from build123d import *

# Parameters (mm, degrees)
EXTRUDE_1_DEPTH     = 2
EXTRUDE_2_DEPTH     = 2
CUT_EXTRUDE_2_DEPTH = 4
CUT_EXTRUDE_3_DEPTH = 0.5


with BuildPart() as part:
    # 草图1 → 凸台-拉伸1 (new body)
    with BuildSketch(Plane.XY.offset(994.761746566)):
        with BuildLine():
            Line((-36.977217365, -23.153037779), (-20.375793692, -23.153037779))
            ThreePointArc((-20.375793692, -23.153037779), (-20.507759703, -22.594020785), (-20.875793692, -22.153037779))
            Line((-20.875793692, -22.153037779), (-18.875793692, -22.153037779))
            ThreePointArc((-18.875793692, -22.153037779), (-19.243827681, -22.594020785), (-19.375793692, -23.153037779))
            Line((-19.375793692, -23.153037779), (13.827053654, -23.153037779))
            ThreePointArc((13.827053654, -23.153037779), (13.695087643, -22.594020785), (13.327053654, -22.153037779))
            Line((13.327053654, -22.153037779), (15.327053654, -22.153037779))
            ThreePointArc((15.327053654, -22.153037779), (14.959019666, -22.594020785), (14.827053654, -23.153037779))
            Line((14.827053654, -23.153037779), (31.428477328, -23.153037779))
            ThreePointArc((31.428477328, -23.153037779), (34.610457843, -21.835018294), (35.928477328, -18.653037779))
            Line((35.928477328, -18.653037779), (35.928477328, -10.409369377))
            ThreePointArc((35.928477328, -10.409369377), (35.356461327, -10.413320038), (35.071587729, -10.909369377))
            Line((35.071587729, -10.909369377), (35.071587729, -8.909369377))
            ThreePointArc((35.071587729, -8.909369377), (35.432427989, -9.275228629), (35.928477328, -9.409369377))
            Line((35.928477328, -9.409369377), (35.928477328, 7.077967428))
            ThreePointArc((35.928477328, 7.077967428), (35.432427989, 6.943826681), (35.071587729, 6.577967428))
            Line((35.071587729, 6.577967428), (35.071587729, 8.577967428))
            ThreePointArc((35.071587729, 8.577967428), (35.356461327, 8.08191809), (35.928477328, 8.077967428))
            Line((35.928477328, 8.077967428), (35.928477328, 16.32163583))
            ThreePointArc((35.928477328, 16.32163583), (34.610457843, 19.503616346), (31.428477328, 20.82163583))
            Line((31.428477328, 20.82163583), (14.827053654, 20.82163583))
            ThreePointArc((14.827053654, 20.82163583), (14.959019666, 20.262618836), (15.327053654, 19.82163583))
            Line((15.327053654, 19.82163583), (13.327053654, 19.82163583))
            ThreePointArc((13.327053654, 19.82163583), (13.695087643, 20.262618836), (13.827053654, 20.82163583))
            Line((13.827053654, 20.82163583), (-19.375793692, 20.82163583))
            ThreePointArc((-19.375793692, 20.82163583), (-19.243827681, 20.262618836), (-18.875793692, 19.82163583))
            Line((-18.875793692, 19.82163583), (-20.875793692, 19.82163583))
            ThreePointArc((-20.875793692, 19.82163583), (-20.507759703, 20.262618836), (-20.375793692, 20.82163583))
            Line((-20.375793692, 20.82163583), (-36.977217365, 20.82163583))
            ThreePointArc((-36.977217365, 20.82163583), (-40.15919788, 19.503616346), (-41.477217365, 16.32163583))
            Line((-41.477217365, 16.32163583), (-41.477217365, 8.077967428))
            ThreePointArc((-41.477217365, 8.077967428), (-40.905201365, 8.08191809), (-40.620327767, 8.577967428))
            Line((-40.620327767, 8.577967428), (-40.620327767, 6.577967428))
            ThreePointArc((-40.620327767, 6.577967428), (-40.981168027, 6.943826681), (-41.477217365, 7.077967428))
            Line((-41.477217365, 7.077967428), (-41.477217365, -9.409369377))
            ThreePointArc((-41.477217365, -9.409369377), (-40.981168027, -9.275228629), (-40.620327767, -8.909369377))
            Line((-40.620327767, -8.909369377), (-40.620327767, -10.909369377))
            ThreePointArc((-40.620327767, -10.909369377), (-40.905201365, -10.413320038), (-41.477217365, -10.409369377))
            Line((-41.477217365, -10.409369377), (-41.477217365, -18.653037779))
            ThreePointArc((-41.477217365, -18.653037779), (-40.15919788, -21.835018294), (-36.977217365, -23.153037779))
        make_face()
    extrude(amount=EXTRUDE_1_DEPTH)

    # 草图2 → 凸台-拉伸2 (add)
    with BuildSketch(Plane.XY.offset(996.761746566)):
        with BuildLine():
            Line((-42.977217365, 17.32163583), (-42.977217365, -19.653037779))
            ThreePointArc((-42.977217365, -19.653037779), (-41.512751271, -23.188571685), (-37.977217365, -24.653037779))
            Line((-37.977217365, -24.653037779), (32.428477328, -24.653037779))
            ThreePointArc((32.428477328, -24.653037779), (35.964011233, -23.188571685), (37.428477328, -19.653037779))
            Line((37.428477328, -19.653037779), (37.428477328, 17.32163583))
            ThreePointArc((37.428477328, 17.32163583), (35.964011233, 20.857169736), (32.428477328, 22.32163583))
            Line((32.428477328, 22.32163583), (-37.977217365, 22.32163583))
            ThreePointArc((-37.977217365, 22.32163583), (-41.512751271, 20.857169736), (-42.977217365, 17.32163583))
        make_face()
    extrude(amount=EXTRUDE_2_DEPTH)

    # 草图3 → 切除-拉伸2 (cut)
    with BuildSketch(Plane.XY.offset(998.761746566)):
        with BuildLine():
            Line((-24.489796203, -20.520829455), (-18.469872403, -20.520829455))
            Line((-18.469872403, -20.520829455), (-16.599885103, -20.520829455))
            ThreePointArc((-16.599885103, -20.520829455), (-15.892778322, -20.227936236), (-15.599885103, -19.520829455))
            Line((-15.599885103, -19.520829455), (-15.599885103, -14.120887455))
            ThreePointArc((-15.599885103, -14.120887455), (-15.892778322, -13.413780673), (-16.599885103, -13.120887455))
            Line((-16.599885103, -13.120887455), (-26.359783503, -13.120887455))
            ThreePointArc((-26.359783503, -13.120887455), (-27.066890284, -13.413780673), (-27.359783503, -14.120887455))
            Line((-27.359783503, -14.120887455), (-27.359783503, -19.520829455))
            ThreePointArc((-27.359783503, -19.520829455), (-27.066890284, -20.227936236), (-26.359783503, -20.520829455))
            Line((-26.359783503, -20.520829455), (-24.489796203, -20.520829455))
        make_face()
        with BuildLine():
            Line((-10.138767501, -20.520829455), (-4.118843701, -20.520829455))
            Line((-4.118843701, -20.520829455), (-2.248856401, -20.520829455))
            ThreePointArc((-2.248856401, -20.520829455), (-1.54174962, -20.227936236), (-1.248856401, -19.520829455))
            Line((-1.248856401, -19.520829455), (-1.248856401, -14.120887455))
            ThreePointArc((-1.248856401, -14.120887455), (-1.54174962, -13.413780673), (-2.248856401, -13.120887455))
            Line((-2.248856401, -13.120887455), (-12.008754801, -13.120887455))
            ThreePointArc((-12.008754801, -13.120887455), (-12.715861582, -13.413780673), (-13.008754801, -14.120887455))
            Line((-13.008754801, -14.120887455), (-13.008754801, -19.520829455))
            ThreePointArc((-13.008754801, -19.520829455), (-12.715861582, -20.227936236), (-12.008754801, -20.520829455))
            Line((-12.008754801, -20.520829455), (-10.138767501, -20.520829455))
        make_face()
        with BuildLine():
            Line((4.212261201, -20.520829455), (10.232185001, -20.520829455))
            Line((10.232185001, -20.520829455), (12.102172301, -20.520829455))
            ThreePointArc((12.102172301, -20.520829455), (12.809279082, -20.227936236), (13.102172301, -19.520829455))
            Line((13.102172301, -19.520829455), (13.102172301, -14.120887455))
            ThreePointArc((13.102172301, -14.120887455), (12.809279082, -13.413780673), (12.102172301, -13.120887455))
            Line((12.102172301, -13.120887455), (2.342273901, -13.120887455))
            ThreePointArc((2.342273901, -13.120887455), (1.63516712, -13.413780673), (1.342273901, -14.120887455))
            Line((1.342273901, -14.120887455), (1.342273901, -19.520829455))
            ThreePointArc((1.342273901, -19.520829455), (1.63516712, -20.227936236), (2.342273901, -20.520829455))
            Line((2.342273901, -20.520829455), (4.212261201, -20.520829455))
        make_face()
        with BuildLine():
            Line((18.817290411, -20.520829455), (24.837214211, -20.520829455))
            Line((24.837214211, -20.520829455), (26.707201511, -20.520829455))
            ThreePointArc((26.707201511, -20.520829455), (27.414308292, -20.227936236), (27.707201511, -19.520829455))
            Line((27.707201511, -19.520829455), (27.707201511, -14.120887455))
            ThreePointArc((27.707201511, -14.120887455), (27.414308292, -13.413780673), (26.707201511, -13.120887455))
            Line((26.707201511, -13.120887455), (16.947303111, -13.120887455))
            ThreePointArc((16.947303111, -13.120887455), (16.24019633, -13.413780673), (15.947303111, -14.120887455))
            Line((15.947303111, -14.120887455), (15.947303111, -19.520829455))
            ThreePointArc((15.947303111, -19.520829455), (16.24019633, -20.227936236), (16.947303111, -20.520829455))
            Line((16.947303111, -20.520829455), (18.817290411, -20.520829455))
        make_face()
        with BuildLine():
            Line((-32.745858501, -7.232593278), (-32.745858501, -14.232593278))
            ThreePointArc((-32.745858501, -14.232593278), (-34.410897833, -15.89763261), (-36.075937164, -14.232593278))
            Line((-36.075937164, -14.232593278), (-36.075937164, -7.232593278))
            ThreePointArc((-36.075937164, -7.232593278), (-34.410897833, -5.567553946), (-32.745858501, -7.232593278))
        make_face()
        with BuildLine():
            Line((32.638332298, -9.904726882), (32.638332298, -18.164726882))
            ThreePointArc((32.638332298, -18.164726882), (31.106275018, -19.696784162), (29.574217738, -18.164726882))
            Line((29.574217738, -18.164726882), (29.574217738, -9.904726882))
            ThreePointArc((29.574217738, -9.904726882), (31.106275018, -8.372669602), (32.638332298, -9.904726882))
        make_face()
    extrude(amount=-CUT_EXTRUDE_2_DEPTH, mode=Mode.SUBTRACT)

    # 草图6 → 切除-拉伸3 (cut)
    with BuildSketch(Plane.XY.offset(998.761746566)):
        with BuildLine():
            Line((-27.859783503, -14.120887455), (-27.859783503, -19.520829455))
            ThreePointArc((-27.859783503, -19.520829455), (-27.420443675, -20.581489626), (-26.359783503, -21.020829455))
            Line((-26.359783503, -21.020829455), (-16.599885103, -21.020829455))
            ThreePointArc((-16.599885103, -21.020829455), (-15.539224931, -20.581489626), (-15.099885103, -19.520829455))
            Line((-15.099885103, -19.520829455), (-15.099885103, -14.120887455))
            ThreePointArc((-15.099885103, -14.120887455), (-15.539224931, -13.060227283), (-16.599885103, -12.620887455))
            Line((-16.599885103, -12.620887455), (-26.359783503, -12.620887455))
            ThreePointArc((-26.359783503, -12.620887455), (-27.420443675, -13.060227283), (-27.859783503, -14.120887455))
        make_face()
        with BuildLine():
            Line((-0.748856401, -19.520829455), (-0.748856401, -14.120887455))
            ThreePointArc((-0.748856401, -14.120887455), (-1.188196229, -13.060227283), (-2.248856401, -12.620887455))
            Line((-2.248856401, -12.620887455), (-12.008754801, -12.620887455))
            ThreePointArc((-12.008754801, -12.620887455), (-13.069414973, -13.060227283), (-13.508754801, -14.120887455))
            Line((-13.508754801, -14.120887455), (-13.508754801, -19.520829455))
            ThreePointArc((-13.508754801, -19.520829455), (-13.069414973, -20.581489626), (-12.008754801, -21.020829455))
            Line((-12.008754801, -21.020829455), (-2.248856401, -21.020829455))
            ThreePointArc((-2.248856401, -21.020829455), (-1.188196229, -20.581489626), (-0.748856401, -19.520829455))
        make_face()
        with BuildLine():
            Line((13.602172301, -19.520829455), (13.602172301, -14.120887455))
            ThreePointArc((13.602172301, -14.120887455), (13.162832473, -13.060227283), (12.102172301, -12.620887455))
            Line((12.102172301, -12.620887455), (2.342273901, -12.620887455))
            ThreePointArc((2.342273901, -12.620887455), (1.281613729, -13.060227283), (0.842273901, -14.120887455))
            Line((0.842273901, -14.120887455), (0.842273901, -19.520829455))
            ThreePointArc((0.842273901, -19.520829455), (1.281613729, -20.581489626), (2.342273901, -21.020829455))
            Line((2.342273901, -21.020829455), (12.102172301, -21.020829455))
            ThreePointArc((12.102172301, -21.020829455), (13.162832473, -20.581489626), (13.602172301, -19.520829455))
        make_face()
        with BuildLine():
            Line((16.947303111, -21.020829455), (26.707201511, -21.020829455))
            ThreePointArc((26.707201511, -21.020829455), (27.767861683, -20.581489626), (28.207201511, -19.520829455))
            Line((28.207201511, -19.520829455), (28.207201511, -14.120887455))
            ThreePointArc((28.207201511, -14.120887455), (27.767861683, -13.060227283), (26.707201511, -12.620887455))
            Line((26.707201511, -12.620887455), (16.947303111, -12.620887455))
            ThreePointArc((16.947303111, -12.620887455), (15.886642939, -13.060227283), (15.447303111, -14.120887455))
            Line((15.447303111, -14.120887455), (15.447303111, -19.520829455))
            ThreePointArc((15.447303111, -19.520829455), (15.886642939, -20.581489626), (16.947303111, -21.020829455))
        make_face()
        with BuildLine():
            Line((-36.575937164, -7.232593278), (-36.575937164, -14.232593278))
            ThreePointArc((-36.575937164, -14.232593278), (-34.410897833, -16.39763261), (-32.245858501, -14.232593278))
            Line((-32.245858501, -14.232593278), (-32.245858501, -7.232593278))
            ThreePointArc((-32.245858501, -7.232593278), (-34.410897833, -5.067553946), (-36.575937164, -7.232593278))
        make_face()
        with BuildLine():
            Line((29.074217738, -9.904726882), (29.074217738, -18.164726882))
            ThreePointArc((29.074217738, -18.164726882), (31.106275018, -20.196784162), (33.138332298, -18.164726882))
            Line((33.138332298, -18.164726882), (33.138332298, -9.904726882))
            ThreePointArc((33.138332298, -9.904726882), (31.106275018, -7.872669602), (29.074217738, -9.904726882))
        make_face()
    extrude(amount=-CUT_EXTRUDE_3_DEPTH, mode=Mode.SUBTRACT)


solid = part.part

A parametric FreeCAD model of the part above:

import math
import FreeCAD as App
import Part
import Sketcher

V = App.Vector

doc = App.newDocument("Part")
body = doc.addObject("PartDesign::Body", "Body")

sketch1 = doc.addObject("Sketcher::SketchObject", "Sketch")
body.addObject(sketch1)
sketch1.AttachmentSupport = (doc.XY_Plane, [""])
sketch1.MapMode = "FlatFace"
sketch1.AttachmentOffset = App.Placement(V(0, 0, 994.761747), App.Rotation())
sketch1.addGeometry([
    Part.LineSegment(V(-36.977217, -23.153038, 0), V(-20.375794, -23.153038, 0)),
    Part.ArcOfCircle(Part.Circle(V(-21.625794, -23.153038, 0), V(0, 0, 1), 1.25), math.radians(0), math.radians(53.130102)),
    Part.LineSegment(V(-20.875794, -22.153038, 0), V(-18.875794, -22.153038, 0)),
    Part.ArcOfCircle(Part.Circle(V(-18.125794, -23.153038, 0), V(0, 0, 1), 1.25), math.radians(126.869898), math.radians(180)),
    Part.LineSegment(V(-19.375794, -23.153038, 0), V(13.827054, -23.153038, 0)),
    Part.ArcOfCircle(Part.Circle(V(12.577054, -23.153038, 0), V(0, 0, 1), 1.25), math.radians(0), math.radians(53.130102)),
    Part.LineSegment(V(13.327054, -22.153038, 0), V(15.327054, -22.153038, 0)),
    Part.ArcOfCircle(Part.Circle(V(16.077054, -23.153038, 0), V(0, 0, 1), 1.25), math.radians(126.869898), math.radians(180)),
    Part.LineSegment(V(14.827054, -23.153038, 0), V(31.428477, -23.153038, 0)),
    Part.ArcOfCircle(Part.Circle(V(31.428477, -18.653038, 0), V(0, 0, 1), 4.5), math.radians(-90), math.radians(0)),
    Part.LineSegment(V(35.928477, -18.653038, 0), V(35.928477, -10.409369, 0)),
    Part.ArcOfCircle(Part.Circle(V(35.645909, -10.909369, 0), V(0, 0, 1), 0.574321), math.radians(60.527614), math.radians(180)),
    Part.LineSegment(V(35.071588, -10.909369, 0), V(35.071588, -8.909369, 0)),
    Part.ArcOfCircle(Part.Circle(V(35.928477, -8.42511, 0), V(0, 0, 1), 0.98426), math.radians(-150.527614), math.radians(-90)),
    Part.LineSegment(V(35.928477, -9.409369, 0), V(35.928477, 7.077967, 0)),
    Part.ArcOfCircle(Part.Circle(V(35.928477, 6.093708, 0), V(0, 0, 1), 0.98426), math.radians(90), math.radians(150.527614)),
    Part.LineSegment(V(35.071588, 6.577967, 0), V(35.071588, 8.577967, 0)),
    Part.ArcOfCircle(Part.Circle(V(35.645909, 8.577967, 0), V(0, 0, 1), 0.574321), math.radians(-180), math.radians(-60.527614)),
    Part.LineSegment(V(35.928477, 8.077967, 0), V(35.928477, 16.321636, 0)),
    Part.ArcOfCircle(Part.Circle(V(31.428477, 16.321636, 0), V(0, 0, 1), 4.5), math.radians(0), math.radians(90)),
    Part.LineSegment(V(31.428477, 20.821636, 0), V(14.827054, 20.821636, 0)),
    Part.ArcOfCircle(Part.Circle(V(16.077054, 20.821636, 0), V(0, 0, 1), 1.25), math.radians(-180), math.radians(-126.869898)),
    Part.LineSegment(V(15.327054, 19.821636, 0), V(13.327054, 19.821636, 0)),
    Part.ArcOfCircle(Part.Circle(V(12.577054, 20.821636, 0), V(0, 0, 1), 1.25), math.radians(-53.130102), math.radians(0)),
    Part.LineSegment(V(13.827054, 20.821636, 0), V(-19.375794, 20.821636, 0)),
    Part.ArcOfCircle(Part.Circle(V(-18.125794, 20.821636, 0), V(0, 0, 1), 1.25), math.radians(180), math.radians(233.130102)),
    Part.LineSegment(V(-18.875794, 19.821636, 0), V(-20.875794, 19.821636, 0)),
    Part.ArcOfCircle(Part.Circle(V(-21.625794, 20.821636, 0), V(0, 0, 1), 1.25), math.radians(-53.130102), math.radians(0)),
    Part.LineSegment(V(-20.375794, 20.821636, 0), V(-36.977217, 20.821636, 0)),
    Part.ArcOfCircle(Part.Circle(V(-36.977217, 16.321636, 0), V(0, 0, 1), 4.5), math.radians(90), math.radians(180)),
    Part.LineSegment(V(-41.477217, 16.321636, 0), V(-41.477217, 8.077967, 0)),
    Part.ArcOfCircle(Part.Circle(V(-41.194649, 8.577967, 0), V(0, 0, 1), 0.574321), math.radians(-119.472386), math.radians(0)),
    Part.LineSegment(V(-40.620328, 8.577967, 0), V(-40.620328, 6.577967, 0)),
    Part.ArcOfCircle(Part.Circle(V(-41.477217, 6.093708, 0), V(0, 0, 1), 0.98426), math.radians(29.472386), math.radians(90)),
    Part.LineSegment(V(-41.477217, 7.077967, 0), V(-41.477217, -9.409369, 0)),
    Part.ArcOfCircle(Part.Circle(V(-41.477217, -8.42511, 0), V(0, 0, 1), 0.98426), math.radians(-90), math.radians(-29.472386)),
    Part.LineSegment(V(-40.620328, -8.909369, 0), V(-40.620328, -10.909369, 0)),
    Part.ArcOfCircle(Part.Circle(V(-41.194649, -10.909369, 0), V(0, 0, 1), 0.574321), math.radians(0), math.radians(119.472386)),
    Part.LineSegment(V(-41.477217, -10.409369, 0), V(-41.477217, -18.653038, 0)),
    Part.ArcOfCircle(Part.Circle(V(-36.977217, -18.653038, 0), V(0, 0, 1), 4.5), math.radians(-180), math.radians(-90)),
], False)
sketch1.addConstraint([
    Sketcher.Constraint("Coincident", 0, 2, 1, 1),
    Sketcher.Constraint("Coincident", 1, 2, 2, 1),
    Sketcher.Constraint("Coincident", 2, 2, 3, 1),
    Sketcher.Constraint("Coincident", 3, 2, 4, 1),
    Sketcher.Constraint("Coincident", 4, 2, 5, 1),
    Sketcher.Constraint("Coincident", 5, 2, 6, 1),
    Sketcher.Constraint("Coincident", 6, 2, 7, 1),
    Sketcher.Constraint("Coincident", 7, 2, 8, 1),
    Sketcher.Constraint("Tangent", 8, 2, 9, 1),
    Sketcher.Constraint("Tangent", 9, 2, 10, 1),
    Sketcher.Constraint("Coincident", 10, 2, 11, 1),
    Sketcher.Constraint("Tangent", 11, 2, 12, 1),
    Sketcher.Constraint("Coincident", 12, 2, 13, 1),
    Sketcher.Constraint("Coincident", 13, 2, 14, 1),
    Sketcher.Constraint("Coincident", 14, 2, 15, 1),
    Sketcher.Constraint("Coincident", 15, 2, 16, 1),
    Sketcher.Constraint("Tangent", 16, 2, 17, 1),
    Sketcher.Constraint("Coincident", 17, 2, 18, 1),
    Sketcher.Constraint("Tangent", 18, 2, 19, 1),
    Sketcher.Constraint("Tangent", 19, 2, 20, 1),
    Sketcher.Constraint("Coincident", 20, 2, 21, 1),
    Sketcher.Constraint("Coincident", 21, 2, 22, 1),
    Sketcher.Constraint("Coincident", 22, 2, 23, 1),
    Sketcher.Constraint("Coincident", 23, 2, 24, 1),
    Sketcher.Constraint("Coincident", 24, 2, 25, 1),
    Sketcher.Constraint("Coincident", 25, 2, 26, 1),
    Sketcher.Constraint("Coincident", 26, 2, 27, 1),
    Sketcher.Constraint("Coincident", 27, 2, 28, 1),
    Sketcher.Constraint("Tangent", 28, 2, 29, 1),
    Sketcher.Constraint("Tangent", 29, 2, 30, 1),
    Sketcher.Constraint("Coincident", 30, 2, 31, 1),
    Sketcher.Constraint("Tangent", 31, 2, 32, 1),
    Sketcher.Constraint("Coincident", 32, 2, 33, 1),
    Sketcher.Constraint("Coincident", 33, 2, 34, 1),
    Sketcher.Constraint("Coincident", 34, 2, 35, 1),
    Sketcher.Constraint("Coincident", 35, 2, 36, 1),
    Sketcher.Constraint("Tangent", 36, 2, 37, 1),
    Sketcher.Constraint("Coincident", 37, 2, 38, 1),
    Sketcher.Constraint("Tangent", 38, 2, 39, 1),
    Sketcher.Constraint("Tangent", 39, 2, 0, 1),
    Sketcher.Constraint("Horizontal", 0),
    Sketcher.Constraint("Horizontal", 2),
    Sketcher.Constraint("Horizontal", 4),
    Sketcher.Constraint("Horizontal", 6),
    Sketcher.Constraint("Horizontal", 8),
    Sketcher.Constraint("Vertical", 10),
    Sketcher.Constraint("Vertical", 12),
    Sketcher.Constraint("Vertical", 14),
    Sketcher.Constraint("Vertical", 16),
    Sketcher.Constraint("Vertical", 18),
    Sketcher.Constraint("Horizontal", 20),
    Sketcher.Constraint("Horizontal", 22),
    Sketcher.Constraint("Horizontal", 24),
    Sketcher.Constraint("Horizontal", 26),
    Sketcher.Constraint("Horizontal", 28),
    Sketcher.Constraint("Vertical", 30),
    Sketcher.Constraint("Vertical", 32),
    Sketcher.Constraint("Vertical", 34),
    Sketcher.Constraint("Vertical", 36),
    Sketcher.Constraint("Vertical", 38),
    Sketcher.Constraint("Equal", 1, 3),
    Sketcher.Constraint("Equal", 3, 5),
    Sketcher.Constraint("Equal", 5, 7),
    Sketcher.Constraint("Equal", 13, 15),
    Sketcher.Constraint("Equal", 11, 17),
    Sketcher.Constraint("Equal", 9, 19),
    Sketcher.Constraint("Equal", 7, 21),
    Sketcher.Constraint("Equal", 21, 23),
    Sketcher.Constraint("Equal", 23, 25),
    Sketcher.Constraint("Equal", 25, 27),
    Sketcher.Constraint("Equal", 19, 29),
    Sketcher.Constraint("Equal", 17, 31),
    Sketcher.Constraint("Equal", 15, 33),
    Sketcher.Constraint("Equal", 33, 35),
    Sketcher.Constraint("Equal", 31, 37),
    Sketcher.Constraint("Equal", 29, 39),
    Sketcher.Constraint("Horizontal", 1, 3, 3, 3),
    Sketcher.Constraint("Horizontal", 3, 3, 5, 3),
    Sketcher.Constraint("Horizontal", 5, 3, 7, 3),
    Sketcher.Constraint("Horizontal", 21, 3, 23, 3),
    Sketcher.Constraint("Horizontal", 23, 3, 25, 3),
    Sketcher.Constraint("Horizontal", 25, 3, 27, 3),
    Sketcher.Constraint("Horizontal", 19, 3, 29, 3),
    Sketcher.Constraint("Horizontal", 17, 3, 31, 3),
    Sketcher.Constraint("Horizontal", 15, 3, 33, 3),
    Sketcher.Constraint("Horizontal", 13, 3, 35, 3),
    Sketcher.Constraint("Horizontal", 11, 3, 37, 3),
    Sketcher.Constraint("Horizontal", 9, 3, 39, 3),
    Sketcher.Constraint("Horizontal", 7, 3, 0, 2),
    Sketcher.Constraint("Horizontal", 0, 2, 3, 2),
    Sketcher.Constraint("Horizontal", 2, 2, 5, 2),
    Sketcher.Constraint("Horizontal", 27, 3, 19, 2),
    Sketcher.Constraint("Horizontal", 20, 2, 23, 2),
    Sketcher.Constraint("Horizontal", 22, 2, 25, 2),
    Sketcher.Constraint("Horizontal", 17, 2, 30, 2),
    Sketcher.Constraint("Horizontal", 15, 2, 32, 2),
    Sketcher.Constraint("Horizontal", 12, 2, 35, 2),
    Sketcher.Constraint("Horizontal", 10, 2, 37, 2),
    Sketcher.Constraint("Vertical", 13, 3, 15, 3),
    Sketcher.Constraint("Vertical", 11, 3, 17, 3),
    Sketcher.Constraint("Vertical", 9, 3, 19, 3),
    Sketcher.Constraint("Vertical", 7, 3, 21, 3),
    Sketcher.Constraint("Vertical", 5, 3, 23, 3),
    Sketcher.Constraint("Vertical", 3, 3, 25, 3),
    Sketcher.Constraint("Vertical", 1, 3, 27, 3),
    Sketcher.Constraint("Vertical", 33, 3, 35, 3),
    Sketcher.Constraint("Vertical", 15, 3, 9, 2),
    Sketcher.Constraint("Vertical", 10, 2, 13, 2),
    Sketcher.Constraint("Vertical", 6, 2, 21, 2),
    Sketcher.Constraint("Vertical", 30, 2, 33, 2),
    Sketcher.Constraint("Equal", 2, 6),
    Sketcher.Constraint("Equal", 0, 8),
    Sketcher.Constraint("Equal", 26, 12),
    Sketcher.Constraint("Equal", 12, 16),
    Sketcher.Constraint("Equal", 10, 18),
    Sketcher.Constraint("Radius", 9, 4.5),
    Sketcher.Constraint("DistanceX", 2, 1, 2, 2, 2.0),
    Sketcher.Constraint("Radius", 1, 1.25),
    Sketcher.Constraint("DistanceY", 0, 2, 1, 2, 1.0),
    Sketcher.Constraint("DistanceY", 10, 2, 13, 2, 1.0),
    Sketcher.Constraint("DistanceY", 11, 3, 10, 2, 0.5),
    Sketcher.Constraint("Radius", 11, 0.574321),
    Sketcher.Constraint("DistanceY", 10, 1, 10, 2, 8.243668),
    Sketcher.Constraint("DistanceX", 0, 1, 0, 2, 16.601424),
    Sketcher.Constraint("DistanceX", 4, 1, 4, 2, 33.202847),
    Sketcher.Constraint("DistanceY", 14, 1, 14, 2, 16.487337),
    Sketcher.Constraint("DistanceX", -1, 1, 11, 3, 35.645909),
    Sketcher.Constraint("DistanceY", 11, 3, -1, 1, 10.909369),
])
pad1 = doc.addObject("PartDesign::Pad", "Pad")
body.addObject(pad1)
pad1.Profile = sketch1
pad1.Length = 2

sketch2 = doc.addObject("Sketcher::SketchObject", "Sketch001")
body.addObject(sketch2)
sketch2.AttachmentSupport = (doc.XY_Plane, [""])
sketch2.MapMode = "FlatFace"
sketch2.AttachmentOffset = App.Placement(V(0, 0, 996.761747), App.Rotation())
sketch2.addGeometry([
    Part.LineSegment(V(-42.977217, 17.321636, 0), V(-42.977217, -19.653038, 0)),
    Part.ArcOfCircle(Part.Circle(V(-37.977217, -19.653038, 0), V(0, 0, 1), 5), math.radians(180), math.radians(270)),
    Part.LineSegment(V(-37.977217, -24.653038, 0), V(32.428477, -24.653038, 0)),
    Part.ArcOfCircle(Part.Circle(V(32.428477, -19.653038, 0), V(0, 0, 1), 5), math.radians(-90), math.radians(0)),
    Part.LineSegment(V(37.428477, -19.653038, 0), V(37.428477, 17.321636, 0)),
    Part.ArcOfCircle(Part.Circle(V(32.428477, 17.321636, 0), V(0, 0, 1), 5), math.radians(0), math.radians(90)),
    Part.LineSegment(V(32.428477, 22.321636, 0), V(-37.977217, 22.321636, 0)),
    Part.ArcOfCircle(Part.Circle(V(-37.977217, 17.321636, 0), V(0, 0, 1), 5), math.radians(90), math.radians(180)),
], False)
sketch2.addConstraint([
    Sketcher.Constraint("Tangent", 0, 2, 1, 1),
    Sketcher.Constraint("Tangent", 1, 2, 2, 1),
    Sketcher.Constraint("Tangent", 2, 2, 3, 1),
    Sketcher.Constraint("Tangent", 3, 2, 4, 1),
    Sketcher.Constraint("Tangent", 4, 2, 5, 1),
    Sketcher.Constraint("Tangent", 5, 2, 6, 1),
    Sketcher.Constraint("Tangent", 6, 2, 7, 1),
    Sketcher.Constraint("Tangent", 7, 2, 0, 1),
    Sketcher.Constraint("Vertical", 0),
    Sketcher.Constraint("Horizontal", 2),
    Sketcher.Constraint("Vertical", 4),
    Sketcher.Constraint("Horizontal", 6),
    Sketcher.Constraint("Equal", 1, 3),
    Sketcher.Constraint("Equal", 3, 5),
    Sketcher.Constraint("Equal", 5, 7),
    Sketcher.Constraint("Radius", 1, 5.0),
    Sketcher.Constraint("DistanceX", 2, 1, 2, 2, 70.405695),
    Sketcher.Constraint("DistanceY", 0, 2, 0, 1, 36.974674),
    Sketcher.Constraint("DistanceX", 1, 3, -1, 1, 37.977217),
    Sketcher.Constraint("DistanceY", 1, 3, -1, 1, 19.653038),
])
pad2 = doc.addObject("PartDesign::Pad", "Pad001")
body.addObject(pad2)
pad2.Profile = sketch2
pad2.Length = 2

sketch3 = doc.addObject("Sketcher::SketchObject", "Sketch002")
body.addObject(sketch3)
sketch3.AttachmentSupport = (doc.XY_Plane, [""])
sketch3.MapMode = "FlatFace"
sketch3.AttachmentOffset = App.Placement(V(0, 0, 998.761747), App.Rotation())
sketch3.addGeometry([
    Part.ArcOfCircle(Part.Circle(V(-16.599885, -19.520829, 0), V(0, 0, 1), 1), math.radians(-90), math.radians(0)),
    Part.LineSegment(V(-15.599885, -19.520829, 0), V(-15.599885, -14.120887, 0)),
    Part.ArcOfCircle(Part.Circle(V(-16.599885, -14.120887, 0), V(0, 0, 1), 1), math.radians(0), math.radians(90)),
    Part.LineSegment(V(-16.599885, -13.120887, 0), V(-26.359784, -13.120887, 0)),
    Part.ArcOfCircle(Part.Circle(V(-26.359784, -14.120887, 0), V(0, 0, 1), 1), math.radians(90), math.radians(180)),
    Part.LineSegment(V(-27.359784, -14.120887, 0), V(-27.359784, -19.520829, 0)),
    Part.ArcOfCircle(Part.Circle(V(-26.359784, -19.520829, 0), V(0, 0, 1), 1), math.radians(-180), math.radians(-90)),
    Part.LineSegment(V(-26.359784, -20.520829, 0), V(-16.599885, -20.520829, 0)),
    Part.ArcOfCircle(Part.Circle(V(-2.248856, -19.520829, 0), V(0, 0, 1), 1), math.radians(-90), math.radians(0)),
    Part.LineSegment(V(-1.248856, -19.520829, 0), V(-1.248856, -14.120887, 0)),
    Part.ArcOfCircle(Part.Circle(V(-2.248856, -14.120887, 0), V(0, 0, 1), 1), math.radians(0), math.radians(90)),
    Part.LineSegment(V(-2.248856, -13.120887, 0), V(-12.008755, -13.120887, 0)),
    Part.ArcOfCircle(Part.Circle(V(-12.008755, -14.120887, 0), V(0, 0, 1), 1), math.radians(90), math.radians(180)),
    Part.LineSegment(V(-13.008755, -14.120887, 0), V(-13.008755, -19.520829, 0)),
    Part.ArcOfCircle(Part.Circle(V(-12.008755, -19.520829, 0), V(0, 0, 1), 1), math.radians(-180), math.radians(-90)),
    Part.LineSegment(V(-12.008755, -20.520829, 0), V(-2.248856, -20.520829, 0)),
    Part.ArcOfCircle(Part.Circle(V(12.102172, -19.520829, 0), V(0, 0, 1), 1), math.radians(-90), math.radians(0)),
    Part.LineSegment(V(13.102172, -19.520829, 0), V(13.102172, -14.120887, 0)),
    Part.ArcOfCircle(Part.Circle(V(12.102172, -14.120887, 0), V(0, 0, 1), 1), math.radians(0), math.radians(90)),
    Part.LineSegment(V(12.102172, -13.120887, 0), V(2.342274, -13.120887, 0)),
    Part.ArcOfCircle(Part.Circle(V(2.342274, -14.120887, 0), V(0, 0, 1), 1), math.radians(90), math.radians(180)),
    Part.LineSegment(V(1.342274, -14.120887, 0), V(1.342274, -19.520829, 0)),
    Part.ArcOfCircle(Part.Circle(V(2.342274, -19.520829, 0), V(0, 0, 1), 1), math.radians(-180), math.radians(-90)),
    Part.LineSegment(V(2.342274, -20.520829, 0), V(12.102172, -20.520829, 0)),
    Part.ArcOfCircle(Part.Circle(V(26.707202, -19.520829, 0), V(0, 0, 1), 1), math.radians(-90), math.radians(0)),
    Part.LineSegment(V(27.707202, -19.520829, 0), V(27.707202, -14.120887, 0)),
    Part.ArcOfCircle(Part.Circle(V(26.707202, -14.120887, 0), V(0, 0, 1), 1), math.radians(0), math.radians(90)),
    Part.LineSegment(V(26.707202, -13.120887, 0), V(16.947303, -13.120887, 0)),
    Part.ArcOfCircle(Part.Circle(V(16.947303, -14.120887, 0), V(0, 0, 1), 1), math.radians(90), math.radians(180)),
    Part.LineSegment(V(15.947303, -14.120887, 0), V(15.947303, -19.520829, 0)),
    Part.ArcOfCircle(Part.Circle(V(16.947303, -19.520829, 0), V(0, 0, 1), 1), math.radians(-180), math.radians(-90)),
    Part.LineSegment(V(16.947303, -20.520829, 0), V(26.707202, -20.520829, 0)),
    Part.LineSegment(V(-32.745859, -14.232593, 0), V(-32.745859, -7.232593, 0)),
    Part.ArcOfCircle(Part.Circle(V(-34.410898, -7.232593, 0), V(0, 0, 1), 1.665039), math.radians(0), math.radians(180)),
    Part.LineSegment(V(-36.075937, -7.232593, 0), V(-36.075937, -14.232593, 0)),
    Part.ArcOfCircle(Part.Circle(V(-34.410898, -14.232593, 0), V(0, 0, 1), 1.665039), math.radians(180), math.radians(360)),
    Part.LineSegment(V(32.638332, -18.164727, 0), V(32.638332, -9.904727, 0)),
    Part.ArcOfCircle(Part.Circle(V(31.106275, -9.904727, 0), V(0, 0, 1), 1.532057), math.radians(0), math.radians(180)),
    Part.LineSegment(V(29.574218, -9.904727, 0), V(29.574218, -18.164727, 0)),
    Part.ArcOfCircle(Part.Circle(V(31.106275, -18.164727, 0), V(0, 0, 1), 1.532057), math.radians(180), math.radians(360)),
], False)
sketch3.addConstraint([
    Sketcher.Constraint("Tangent", 0, 2, 1, 1),
    Sketcher.Constraint("Tangent", 1, 2, 2, 1),
    Sketcher.Constraint("Tangent", 2, 2, 3, 1),
    Sketcher.Constraint("Tangent", 3, 2, 4, 1),
    Sketcher.Constraint("Tangent", 4, 2, 5, 1),
    Sketcher.Constraint("Tangent", 5, 2, 6, 1),
    Sketcher.Constraint("Tangent", 6, 2, 7, 1),
    Sketcher.Constraint("Tangent", 7, 2, 0, 1),
    Sketcher.Constraint("Tangent", 8, 2, 9, 1),
    Sketcher.Constraint("Tangent", 9, 2, 10, 1),
    Sketcher.Constraint("Tangent", 10, 2, 11, 1),
    Sketcher.Constraint("Tangent", 11, 2, 12, 1),
    Sketcher.Constraint("Tangent", 12, 2, 13, 1),
    Sketcher.Constraint("Tangent", 13, 2, 14, 1),
    Sketcher.Constraint("Tangent", 14, 2, 15, 1),
    Sketcher.Constraint("Tangent", 15, 2, 8, 1),
    Sketcher.Constraint("Tangent", 16, 2, 17, 1),
    Sketcher.Constraint("Tangent", 17, 2, 18, 1),
    Sketcher.Constraint("Tangent", 18, 2, 19, 1),
    Sketcher.Constraint("Tangent", 19, 2, 20, 1),
    Sketcher.Constraint("Tangent", 20, 2, 21, 1),
    Sketcher.Constraint("Tangent", 21, 2, 22, 1),
    Sketcher.Constraint("Tangent", 22, 2, 23, 1),
    Sketcher.Constraint("Tangent", 23, 2, 16, 1),
    Sketcher.Constraint("Tangent", 24, 2, 25, 1),
    Sketcher.Constraint("Tangent", 25, 2, 26, 1),
    Sketcher.Constraint("Tangent", 26, 2, 27, 1),
    Sketcher.Constraint("Tangent", 27, 2, 28, 1),
    Sketcher.Constraint("Tangent", 28, 2, 29, 1),
    Sketcher.Constraint("Tangent", 29, 2, 30, 1),
    Sketcher.Constraint("Tangent", 30, 2, 31, 1),
    Sketcher.Constraint("Tangent", 31, 2, 24, 1),
    Sketcher.Constraint("Tangent", 32, 2, 33, 1),
    Sketcher.Constraint("Tangent", 33, 2, 34, 1),
    Sketcher.Constraint("Tangent", 34, 2, 35, 1),
    Sketcher.Constraint("Tangent", 35, 2, 32, 1),
    Sketcher.Constraint("Tangent", 36, 2, 37, 1),
    Sketcher.Constraint("Tangent", 37, 2, 38, 1),
    Sketcher.Constraint("Tangent", 38, 2, 39, 1),
    Sketcher.Constraint("Tangent", 39, 2, 36, 1),
    Sketcher.Constraint("Vertical", 1),
    Sketcher.Constraint("Horizontal", 3),
    Sketcher.Constraint("Vertical", 5),
    Sketcher.Constraint("Horizontal", 7),
    Sketcher.Constraint("Vertical", 9),
    Sketcher.Constraint("Horizontal", 11),
    Sketcher.Constraint("Vertical", 13),
    Sketcher.Constraint("Horizontal", 15),
    Sketcher.Constraint("Vertical", 17),
    Sketcher.Constraint("Horizontal", 19),
    Sketcher.Constraint("Vertical", 21),
    Sketcher.Constraint("Horizontal", 23),
    Sketcher.Constraint("Vertical", 25),
    Sketcher.Constraint("Horizontal", 27),
    Sketcher.Constraint("Vertical", 29),
    Sketcher.Constraint("Horizontal", 31),
    Sketcher.Constraint("Vertical", 32),
    Sketcher.Constraint("Vertical", 34),
    Sketcher.Constraint("Vertical", 36),
    Sketcher.Constraint("Vertical", 38),
    Sketcher.Constraint("Equal", 0, 2),
    Sketcher.Constraint("Equal", 2, 4),
    Sketcher.Constraint("Equal", 4, 6),
    Sketcher.Constraint("Equal", 6, 8),
    Sketcher.Constraint("Equal", 8, 10),
    Sketcher.Constraint("Equal", 10, 12),
    Sketcher.Constraint("Equal", 12, 14),
    Sketcher.Constraint("Equal", 14, 16),
    Sketcher.Constraint("Equal", 16, 18),
    Sketcher.Constraint("Equal", 18, 20),
    Sketcher.Constraint("Equal", 20, 22),
    Sketcher.Constraint("Equal", 22, 24),
    Sketcher.Constraint("Equal", 24, 26),
    Sketcher.Constraint("Equal", 26, 28),
    Sketcher.Constraint("Equal", 28, 30),
    Sketcher.Constraint("Horizontal", 6, 3, 8, 3),
    Sketcher.Constraint("Horizontal", 4, 3, 10, 3),
    Sketcher.Constraint("Horizontal", 14, 3, 16, 3),
    Sketcher.Constraint("Horizontal", 12, 3, 18, 3),
    Sketcher.Constraint("Horizontal", 22, 3, 24, 3),
    Sketcher.Constraint("Horizontal", 20, 3, 26, 3),
    Sketcher.Constraint("Equal", 7, 11),
    Sketcher.Constraint("Equal", 15, 19),
    Sketcher.Constraint("Equal", 23, 27),
    Sketcher.Constraint("Radius", 0, 1.0),
    Sketcher.Constraint("DistanceY", 32, 1, 32, 2, 7.0),
    Sketcher.Constraint("DistanceY", 36, 1, 36, 2, 8.26),
    Sketcher.Constraint("Radius", 33, 1.665039),
    Sketcher.Constraint("DistanceX", 3, 2, 3, 1, 9.759898),
    Sketcher.Constraint("Radius", 37, 1.532057),
    Sketcher.Constraint("DistanceX", -1, 1, 24, 3, 26.707202),
    Sketcher.Constraint("DistanceY", 1, 1, 1, 2, 5.399942),
    Sketcher.Constraint("DistanceY", 0, 3, -1, 1, 19.520829),
    Sketcher.Constraint("DistanceX", 32, 2, -1, 1, 32.745859),
    Sketcher.Constraint("DistanceX", 0, 3, 8, 3, 14.351029),
    Sketcher.Constraint("DistanceX", 8, 3, 16, 3, 14.351029),
    Sketcher.Constraint("DistanceX", 16, 3, 24, 3, 14.605029),
    Sketcher.Constraint("DistanceY", 26, 3, 37, 3, 4.216161),
    Sketcher.Constraint("DistanceX", 28, 3, 37, 3, 14.158972),
    Sketcher.Constraint("DistanceY", 33, 3, -1, 1, 7.232593),
])
pocket1 = doc.addObject("PartDesign::Pocket", "Pocket")
body.addObject(pocket1)
pocket1.Profile = sketch3
pocket1.Length = 4

sketch4 = doc.addObject("Sketcher::SketchObject", "Sketch003")
body.addObject(sketch4)
sketch4.AttachmentSupport = (doc.XY_Plane, [""])
sketch4.MapMode = "FlatFace"
sketch4.AttachmentOffset = App.Placement(V(0, 0, 998.761747), App.Rotation())
sketch4.addGeometry([
    Part.LineSegment(V(-27.859784, -14.120887, 0), V(-27.859784, -19.520829, 0)),
    Part.ArcOfCircle(Part.Circle(V(-26.359784, -19.520829, 0), V(0, 0, 1), 1.5), math.radians(-180), math.radians(-90)),
    Part.LineSegment(V(-26.359784, -21.020829, 0), V(-16.599885, -21.020829, 0)),
    Part.ArcOfCircle(Part.Circle(V(-16.599885, -19.520829, 0), V(0, 0, 1), 1.5), math.radians(-90), math.radians(0)),
    Part.LineSegment(V(-15.099885, -19.520829, 0), V(-15.099885, -14.120887, 0)),
    Part.ArcOfCircle(Part.Circle(V(-16.599885, -14.120887, 0), V(0, 0, 1), 1.5), math.radians(0), math.radians(90)),
    Part.LineSegment(V(-16.599885, -12.620887, 0), V(-26.359784, -12.620887, 0)),
    Part.ArcOfCircle(Part.Circle(V(-26.359784, -14.120887, 0), V(0, 0, 1), 1.5), math.radians(90), math.radians(180)),
    Part.LineSegment(V(-0.748856, -19.520829, 0), V(-0.748856, -14.120887, 0)),
    Part.ArcOfCircle(Part.Circle(V(-2.248856, -14.120887, 0), V(0, 0, 1), 1.5), math.radians(0), math.radians(90)),
    Part.LineSegment(V(-2.248856, -12.620887, 0), V(-12.008755, -12.620887, 0)),
    Part.ArcOfCircle(Part.Circle(V(-12.008755, -14.120887, 0), V(0, 0, 1), 1.5), math.radians(90), math.radians(180)),
    Part.LineSegment(V(-13.508755, -14.120887, 0), V(-13.508755, -19.520829, 0)),
    Part.ArcOfCircle(Part.Circle(V(-12.008755, -19.520829, 0), V(0, 0, 1), 1.5), math.radians(-180), math.radians(-90)),
    Part.LineSegment(V(-12.008755, -21.020829, 0), V(-2.248856, -21.020829, 0)),
    Part.ArcOfCircle(Part.Circle(V(-2.248856, -19.520829, 0), V(0, 0, 1), 1.5), math.radians(-90), math.radians(0)),
    Part.LineSegment(V(13.602172, -19.520829, 0), V(13.602172, -14.120887, 0)),
    Part.ArcOfCircle(Part.Circle(V(12.102172, -14.120887, 0), V(0, 0, 1), 1.5), math.radians(0), math.radians(90)),
    Part.LineSegment(V(12.102172, -12.620887, 0), V(2.342274, -12.620887, 0)),
    Part.ArcOfCircle(Part.Circle(V(2.342274, -14.120887, 0), V(0, 0, 1), 1.5), math.radians(90), math.radians(180)),
    Part.LineSegment(V(0.842274, -14.120887, 0), V(0.842274, -19.520829, 0)),
    Part.ArcOfCircle(Part.Circle(V(2.342274, -19.520829, 0), V(0, 0, 1), 1.5), math.radians(-180), math.radians(-90)),
    Part.LineSegment(V(2.342274, -21.020829, 0), V(12.102172, -21.020829, 0)),
    Part.ArcOfCircle(Part.Circle(V(12.102172, -19.520829, 0), V(0, 0, 1), 1.5), math.radians(-90), math.radians(0)),
    Part.LineSegment(V(16.947303, -21.020829, 0), V(26.707202, -21.020829, 0)),
    Part.ArcOfCircle(Part.Circle(V(26.707202, -19.520829, 0), V(0, 0, 1), 1.5), math.radians(-90), math.radians(0)),
    Part.LineSegment(V(28.207202, -19.520829, 0), V(28.207202, -14.120887, 0)),
    Part.ArcOfCircle(Part.Circle(V(26.707202, -14.120887, 0), V(0, 0, 1), 1.5), math.radians(0), math.radians(90)),
    Part.LineSegment(V(26.707202, -12.620887, 0), V(16.947303, -12.620887, 0)),
    Part.ArcOfCircle(Part.Circle(V(16.947303, -14.120887, 0), V(0, 0, 1), 1.5), math.radians(90), math.radians(180)),
    Part.LineSegment(V(15.447303, -14.120887, 0), V(15.447303, -19.520829, 0)),
    Part.ArcOfCircle(Part.Circle(V(16.947303, -19.520829, 0), V(0, 0, 1), 1.5), math.radians(-180), math.radians(-90)),
    Part.LineSegment(V(-36.575937, -7.232593, 0), V(-36.575937, -14.232593, 0)),
    Part.ArcOfCircle(Part.Circle(V(-34.410898, -14.232593, 0), V(0, 0, 1), 2.165039), math.radians(180), math.radians(360)),
    Part.LineSegment(V(-32.245859, -14.232593, 0), V(-32.245859, -7.232593, 0)),
    Part.ArcOfCircle(Part.Circle(V(-34.410898, -7.232593, 0), V(0, 0, 1), 2.165039), math.radians(0), math.radians(180)),
    Part.LineSegment(V(29.074218, -9.904727, 0), V(29.074218, -18.164727, 0)),
    Part.ArcOfCircle(Part.Circle(V(31.106275, -18.164727, 0), V(0, 0, 1), 2.032057), math.radians(180), math.radians(360)),
    Part.LineSegment(V(33.138332, -18.164727, 0), V(33.138332, -9.904727, 0)),
    Part.ArcOfCircle(Part.Circle(V(31.106275, -9.904727, 0), V(0, 0, 1), 2.032057), math.radians(0), math.radians(180)),
], False)
sketch4.addConstraint([
    Sketcher.Constraint("Tangent", 0, 2, 1, 1),
    Sketcher.Constraint("Tangent", 1, 2, 2, 1),
    Sketcher.Constraint("Tangent", 2, 2, 3, 1),
    Sketcher.Constraint("Tangent", 3, 2, 4, 1),
    Sketcher.Constraint("Tangent", 4, 2, 5, 1),
    Sketcher.Constraint("Tangent", 5, 2, 6, 1),
    Sketcher.Constraint("Tangent", 6, 2, 7, 1),
    Sketcher.Constraint("Tangent", 7, 2, 0, 1),
    Sketcher.Constraint("Tangent", 8, 2, 9, 1),
    Sketcher.Constraint("Tangent", 9, 2, 10, 1),
    Sketcher.Constraint("Tangent", 10, 2, 11, 1),
    Sketcher.Constraint("Tangent", 11, 2, 12, 1),
    Sketcher.Constraint("Tangent", 12, 2, 13, 1),
    Sketcher.Constraint("Tangent", 13, 2, 14, 1),
    Sketcher.Constraint("Tangent", 14, 2, 15, 1),
    Sketcher.Constraint("Tangent", 15, 2, 8, 1),
    Sketcher.Constraint("Tangent", 16, 2, 17, 1),
    Sketcher.Constraint("Tangent", 17, 2, 18, 1),
    Sketcher.Constraint("Tangent", 18, 2, 19, 1),
    Sketcher.Constraint("Tangent", 19, 2, 20, 1),
    Sketcher.Constraint("Tangent", 20, 2, 21, 1),
    Sketcher.Constraint("Tangent", 21, 2, 22, 1),
    Sketcher.Constraint("Tangent", 22, 2, 23, 1),
    Sketcher.Constraint("Tangent", 23, 2, 16, 1),
    Sketcher.Constraint("Tangent", 24, 2, 25, 1),
    Sketcher.Constraint("Tangent", 25, 2, 26, 1),
    Sketcher.Constraint("Tangent", 26, 2, 27, 1),
    Sketcher.Constraint("Tangent", 27, 2, 28, 1),
    Sketcher.Constraint("Tangent", 28, 2, 29, 1),
    Sketcher.Constraint("Tangent", 29, 2, 30, 1),
    Sketcher.Constraint("Tangent", 30, 2, 31, 1),
    Sketcher.Constraint("Tangent", 31, 2, 24, 1),
    Sketcher.Constraint("Tangent", 32, 2, 33, 1),
    Sketcher.Constraint("Tangent", 33, 2, 34, 1),
    Sketcher.Constraint("Tangent", 34, 2, 35, 1),
    Sketcher.Constraint("Tangent", 35, 2, 32, 1),
    Sketcher.Constraint("Tangent", 36, 2, 37, 1),
    Sketcher.Constraint("Tangent", 37, 2, 38, 1),
    Sketcher.Constraint("Tangent", 38, 2, 39, 1),
    Sketcher.Constraint("Tangent", 39, 2, 36, 1),
    Sketcher.Constraint("Vertical", 0),
    Sketcher.Constraint("Horizontal", 2),
    Sketcher.Constraint("Vertical", 4),
    Sketcher.Constraint("Horizontal", 6),
    Sketcher.Constraint("Vertical", 8),
    Sketcher.Constraint("Horizontal", 10),
    Sketcher.Constraint("Vertical", 12),
    Sketcher.Constraint("Horizontal", 14),
    Sketcher.Constraint("Vertical", 16),
    Sketcher.Constraint("Horizontal", 18),
    Sketcher.Constraint("Vertical", 20),
    Sketcher.Constraint("Horizontal", 22),
    Sketcher.Constraint("Horizontal", 24),
    Sketcher.Constraint("Vertical", 26),
    Sketcher.Constraint("Horizontal", 28),
    Sketcher.Constraint("Vertical", 30),
    Sketcher.Constraint("Vertical", 32),
    Sketcher.Constraint("Vertical", 34),
    Sketcher.Constraint("Vertical", 36),
    Sketcher.Constraint("Vertical", 38),
    Sketcher.Constraint("Equal", 1, 3),
    Sketcher.Constraint("Equal", 3, 5),
    Sketcher.Constraint("Equal", 5, 7),
    Sketcher.Constraint("Equal", 7, 9),
    Sketcher.Constraint("Equal", 9, 11),
    Sketcher.Constraint("Equal", 11, 13),
    Sketcher.Constraint("Equal", 13, 15),
    Sketcher.Constraint("Equal", 15, 17),
    Sketcher.Constraint("Equal", 17, 19),
    Sketcher.Constraint("Equal", 19, 21),
    Sketcher.Constraint("Equal", 21, 23),
    Sketcher.Constraint("Equal", 23, 25),
    Sketcher.Constraint("Equal", 25, 27),
    Sketcher.Constraint("Equal", 27, 29),
    Sketcher.Constraint("Equal", 29, 31),
    Sketcher.Constraint("Horizontal", 7, 3, 9, 3),
    Sketcher.Constraint("Horizontal", 3, 3, 13, 3),
    Sketcher.Constraint("Horizontal", 11, 3, 17, 3),
    Sketcher.Constraint("Horizontal", 15, 3, 21, 3),
    Sketcher.Constraint("Horizontal", 23, 3, 25, 3),
    Sketcher.Constraint("Horizontal", 19, 3, 27, 3),
    Sketcher.Constraint("Equal", 6, 10),
    Sketcher.Constraint("Equal", 14, 18),
    Sketcher.Constraint("Equal", 22, 24),
    Sketcher.Constraint("Radius", 1, 1.5),
    Sketcher.Constraint("DistanceY", 32, 2, 32, 1, 7.0),
    Sketcher.Constraint("DistanceY", 36, 2, 36, 1, 8.26),
    Sketcher.Constraint("Radius", 33, 2.165039),
    Sketcher.Constraint("DistanceX", 2, 1, 2, 2, 9.759898),
    Sketcher.Constraint("Radius", 37, 2.032057),
    Sketcher.Constraint("DistanceX", -1, 1, 25, 3, 26.707202),
    Sketcher.Constraint("DistanceY", 0, 2, 0, 1, 5.399942),
    Sketcher.Constraint("DistanceY", 1, 3, -1, 1, 19.520829),
    Sketcher.Constraint("DistanceX", 33, 2, -1, 1, 32.245859),
    Sketcher.Constraint("DistanceX", 5, 3, 9, 3, 14.351029),
    Sketcher.Constraint("DistanceX", 9, 3, 17, 3, 14.351029),
    Sketcher.Constraint("DistanceX", 23, 3, 25, 3, 14.605029),
    Sketcher.Constraint("DistanceY", 37, 3, 27, 3, 4.043839),
    Sketcher.Constraint("DistanceX", 31, 3, 37, 3, 14.158972),
    Sketcher.Constraint("DistanceY", 33, 3, -1, 1, 14.232593),
])
pocket2 = doc.addObject("PartDesign::Pocket", "Pocket001")
body.addObject(pocket2)
pocket2.Profile = sketch4
pocket2.Length = 0.5

doc.recompute()
